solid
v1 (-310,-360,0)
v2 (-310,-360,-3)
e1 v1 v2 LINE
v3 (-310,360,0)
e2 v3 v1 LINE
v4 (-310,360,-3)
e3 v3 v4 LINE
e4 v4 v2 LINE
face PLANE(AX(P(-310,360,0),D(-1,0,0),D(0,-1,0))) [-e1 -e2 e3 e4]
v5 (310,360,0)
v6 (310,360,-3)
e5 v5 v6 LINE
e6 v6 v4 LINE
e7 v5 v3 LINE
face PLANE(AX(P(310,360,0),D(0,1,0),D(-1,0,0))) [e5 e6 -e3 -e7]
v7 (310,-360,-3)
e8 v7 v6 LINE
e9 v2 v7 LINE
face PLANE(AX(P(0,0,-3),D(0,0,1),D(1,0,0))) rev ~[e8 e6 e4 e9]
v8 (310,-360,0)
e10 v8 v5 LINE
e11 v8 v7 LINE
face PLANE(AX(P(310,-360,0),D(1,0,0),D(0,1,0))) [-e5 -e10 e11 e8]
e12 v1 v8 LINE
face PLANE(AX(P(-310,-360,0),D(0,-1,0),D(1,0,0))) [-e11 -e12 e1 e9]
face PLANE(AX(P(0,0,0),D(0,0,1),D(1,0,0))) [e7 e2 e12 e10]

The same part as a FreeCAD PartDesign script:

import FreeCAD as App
import Part
import Sketcher
from FreeCAD import Vector


def add_polygon(sketch, points):
    """Adds a closed chain of lines whose ends are joined by coincident constraints."""
    first, n = sketch.GeometryCount, len(points)
    for a, b in zip(points, points[1:] + points[:1]):
        sketch.addGeometry(Part.LineSegment(App.Vector(*a, 0), App.Vector(*b, 0)), False)
    for i in range(n):
        sketch.addConstraint(Sketcher.Constraint("Coincident", first + i, 2, first + (i + 1) % n, 1))

doc = App.newDocument("Part")
body = doc.addObject("PartDesign::Body", "Body")

sketch1 = body.newObject("Sketcher::SketchObject", "Sketch")
sketch1.AttachmentSupport = (doc.getObject("XY_Plane"), [""])
sketch1.MapMode = "FlatFace"
add_polygon(sketch1, [(-310, 360), (-310, -360), (310, -360), (310, 360)])
sketch1.addConstraint([
    Sketcher.Constraint("Vertical", 0),
    Sketcher.Constraint("Horizontal", 1),
    Sketcher.Constraint("Vertical", 2),
    Sketcher.Constraint("Horizontal", 3),
    Sketcher.Constraint("Symmetric", 0, 2, 2, 2, -1, 1),
    Sketcher.Constraint("DistanceX", 1, 1, 1, 2, 620.0),
    Sketcher.Constraint("DistanceY", 0, 2, 0, 1, 720.0),
])
pad1 = body.newObject("PartDesign::Pad", "Pad")
pad1.Profile = sketch1
pad1.Length = 3
pad1.Reversed = True

doc.recompute()
